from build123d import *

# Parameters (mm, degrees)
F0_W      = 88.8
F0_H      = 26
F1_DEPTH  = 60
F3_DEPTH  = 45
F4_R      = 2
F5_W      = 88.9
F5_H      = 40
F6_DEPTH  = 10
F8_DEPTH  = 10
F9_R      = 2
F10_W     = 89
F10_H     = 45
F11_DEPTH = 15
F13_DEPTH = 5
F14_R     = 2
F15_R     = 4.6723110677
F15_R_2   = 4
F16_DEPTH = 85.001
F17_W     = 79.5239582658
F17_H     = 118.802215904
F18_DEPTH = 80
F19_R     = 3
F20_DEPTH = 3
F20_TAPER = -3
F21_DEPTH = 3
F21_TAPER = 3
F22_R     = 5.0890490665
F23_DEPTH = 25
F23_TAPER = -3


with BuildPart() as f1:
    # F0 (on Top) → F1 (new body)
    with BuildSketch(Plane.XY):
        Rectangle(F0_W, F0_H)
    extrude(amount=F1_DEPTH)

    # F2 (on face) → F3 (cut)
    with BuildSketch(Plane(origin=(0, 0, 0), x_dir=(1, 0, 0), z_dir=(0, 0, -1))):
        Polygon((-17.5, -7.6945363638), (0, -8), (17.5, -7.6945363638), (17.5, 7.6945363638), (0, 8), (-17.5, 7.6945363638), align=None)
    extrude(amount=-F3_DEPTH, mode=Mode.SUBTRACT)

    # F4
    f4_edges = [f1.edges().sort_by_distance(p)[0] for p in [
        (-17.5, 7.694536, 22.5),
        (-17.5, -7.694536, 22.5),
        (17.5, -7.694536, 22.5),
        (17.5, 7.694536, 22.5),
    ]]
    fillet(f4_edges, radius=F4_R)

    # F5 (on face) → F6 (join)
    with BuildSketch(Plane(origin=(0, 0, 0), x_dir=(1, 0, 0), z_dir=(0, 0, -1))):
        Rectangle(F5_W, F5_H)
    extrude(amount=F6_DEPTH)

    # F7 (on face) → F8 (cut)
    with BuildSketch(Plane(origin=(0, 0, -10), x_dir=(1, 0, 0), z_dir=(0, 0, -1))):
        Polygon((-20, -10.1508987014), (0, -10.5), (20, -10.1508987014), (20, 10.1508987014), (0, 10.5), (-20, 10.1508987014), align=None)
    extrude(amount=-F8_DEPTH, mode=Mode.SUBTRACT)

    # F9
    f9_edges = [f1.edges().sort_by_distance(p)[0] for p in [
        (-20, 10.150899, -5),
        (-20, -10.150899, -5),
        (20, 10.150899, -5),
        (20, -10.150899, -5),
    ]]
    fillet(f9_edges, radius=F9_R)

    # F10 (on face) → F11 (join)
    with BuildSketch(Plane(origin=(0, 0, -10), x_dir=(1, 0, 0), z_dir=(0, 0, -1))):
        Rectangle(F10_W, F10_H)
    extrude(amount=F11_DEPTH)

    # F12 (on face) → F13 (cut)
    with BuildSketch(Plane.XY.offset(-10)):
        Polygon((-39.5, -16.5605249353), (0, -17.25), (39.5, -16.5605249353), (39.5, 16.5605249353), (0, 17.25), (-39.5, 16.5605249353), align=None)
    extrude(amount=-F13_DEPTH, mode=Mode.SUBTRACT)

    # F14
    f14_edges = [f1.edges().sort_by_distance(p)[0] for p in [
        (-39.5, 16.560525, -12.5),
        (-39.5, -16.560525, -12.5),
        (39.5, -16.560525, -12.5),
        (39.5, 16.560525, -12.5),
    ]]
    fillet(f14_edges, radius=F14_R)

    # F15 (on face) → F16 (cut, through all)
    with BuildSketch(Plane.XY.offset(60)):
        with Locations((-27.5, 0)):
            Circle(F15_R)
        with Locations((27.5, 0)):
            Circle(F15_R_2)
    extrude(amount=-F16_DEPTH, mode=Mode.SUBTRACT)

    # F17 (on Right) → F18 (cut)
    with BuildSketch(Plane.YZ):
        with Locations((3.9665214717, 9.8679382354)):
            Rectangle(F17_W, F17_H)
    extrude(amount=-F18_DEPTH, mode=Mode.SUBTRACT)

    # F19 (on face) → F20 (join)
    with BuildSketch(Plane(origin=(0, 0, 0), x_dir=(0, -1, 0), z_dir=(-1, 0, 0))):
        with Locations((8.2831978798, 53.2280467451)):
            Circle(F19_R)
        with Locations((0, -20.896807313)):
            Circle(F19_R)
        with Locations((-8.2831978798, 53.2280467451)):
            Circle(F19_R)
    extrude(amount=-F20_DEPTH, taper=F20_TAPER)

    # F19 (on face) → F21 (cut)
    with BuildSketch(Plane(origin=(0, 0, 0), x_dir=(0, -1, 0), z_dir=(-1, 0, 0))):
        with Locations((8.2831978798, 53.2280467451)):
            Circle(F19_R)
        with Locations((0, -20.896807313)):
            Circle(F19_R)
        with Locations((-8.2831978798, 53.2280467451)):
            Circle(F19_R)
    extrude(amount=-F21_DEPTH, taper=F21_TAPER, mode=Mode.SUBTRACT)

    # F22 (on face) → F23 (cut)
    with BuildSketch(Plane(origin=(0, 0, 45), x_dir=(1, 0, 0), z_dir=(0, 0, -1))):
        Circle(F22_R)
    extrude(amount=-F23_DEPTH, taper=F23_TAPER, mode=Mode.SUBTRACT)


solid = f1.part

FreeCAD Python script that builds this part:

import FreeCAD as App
import Part
import Sketcher
from FreeCAD import Vector
Q = App.Units.Quantity


def edges_at(feature, points):
    """Names of the edges that pass closest to the given points."""
    edges = feature.Shape.Edges
    near = lambda p: min(range(len(edges)), key=lambda i: edges[i].distToShape(Part.Vertex(*p))[0])
    return sorted({f"Edge{near(p) + 1}" for p in points})


def add_polygon(sketch, points):
    """Adds a closed chain of lines whose ends are joined by coincident constraints."""
    first, n = sketch.GeometryCount, len(points)
    for a, b in zip(points, points[1:] + points[:1]):
        sketch.addGeometry(Part.LineSegment(App.Vector(*a, 0), App.Vector(*b, 0)), False)
    for i in range(n):
        sketch.addConstraint(Sketcher.Constraint("Coincident", first + i, 2, first + (i + 1) % n, 1))

doc = App.newDocument("Part")
body = doc.addObject("PartDesign::Body", "Body")

# Sketch on XY plane
sketch1 = body.newObject("Sketcher::SketchObject", "Sketch")
sketch1.AttachmentSupport = (doc.getObject("XY_Plane"), [""])
sketch1.MapMode = "FlatFace"
add_polygon(sketch1, [(-44, 13), (-44, -13), (44, -13), (44, 13)])  # lines 0-3
sketch1.addConstraint([
    Sketcher.Constraint("Vertical", 0),
    Sketcher.Constraint("Horizontal", 1),
    Sketcher.Constraint("Vertical", 2),
    Sketcher.Constraint("Horizontal", 3),
    Sketcher.Constraint("Symmetric", 0, 2, 2, 2, -1, 1),
    Sketcher.Constraint("DistanceY", 0, 2, 0, 1, 26.0),
    Sketcher.Constraint("DistanceX", 1, 1, 1, 2, 88.8),
])
pad1 = body.newObject("PartDesign::Pad", "Pad")
pad1.Profile = sketch1
pad1.Length = 60

# Sketch on XY plane
sketch2 = body.newObject("Sketcher::SketchObject", "Sketch001")
sketch2.AttachmentSupport = (doc.getObject("XY_Plane"), [""])
sketch2.MapMode = "FlatFace"
add_polygon(sketch2, [(-18, 8), (0, 8), (18, 8), (18, -8), (0, -8), (-18, -8)])  # lines 0-5
sketch2.addConstraint([
    Sketcher.Constraint("Vertical", 2),
    Sketcher.Constraint("Vertical", 5),
    Sketcher.Constraint("Symmetric", 0, 2, 3, 2, -1, 1),
    Sketcher.Constraint("Symmetric", 1, 2, 4, 2, -1, 1),
    Sketcher.Constraint("PointOnObject", 0, 2, -2),
    Sketcher.Constraint("Parallel", 0, 3),
    Sketcher.Constraint("Horizontal", 2, 2, 4, 2),
    Sketcher.Constraint("Angle", 0, Q("1 deg")),
    Sketcher.Constraint("DistanceY", -1, 1, 0, 2, 8.0),
    Sketcher.Constraint("DistanceX", 4, 2, 2, 2, 35.0),
])
pocket1 = body.newObject("PartDesign::Pocket", "Pocket")
pocket1.Profile = sketch2
pocket1.Length = 45
pocket1.Reversed = True
doc.recompute()

fillet = body.newObject("PartDesign::Fillet", "Fillet")
fillet.Base = (pocket1, edges_at(pocket1, [
    (-17.5, 7.695, 22.5),
    (-17.5, -7.695, 22.5),
    (17.5, -7.695, 22.5),
    (17.5, 7.695, 22.5),
]))
fillet.Radius = 2

# Sketch on XY plane
sketch3 = body.newObject("Sketcher::SketchObject", "Sketch002")
sketch3.AttachmentSupport = (doc.getObject("XY_Plane"), [""])
sketch3.MapMode = "FlatFace"
add_polygon(sketch3, [(-44, -20), (-44, 20), (44, 20), (44, -20)])  # lines 0-3
sketch3.addConstraint([
    Sketcher.Constraint("Vertical", 0),
    Sketcher.Constraint("Horizontal", 1),
    Sketcher.Constraint("Vertical", 2),
    Sketcher.Constraint("Horizontal", 3),
    Sketcher.Constraint("Symmetric", 0, 2, 2, 2, -1, 1),
    Sketcher.Constraint("DistanceY", 0, 1, 0, 2, 40.0),
    Sketcher.Constraint("DistanceX", 1, 1, 1, 2, 88.9),
])
pad2 = body.newObject("PartDesign::Pad", "Pad001")
pad2.Profile = sketch3
pad2.Length = 10
pad2.Reversed = True

# Sketch on XY plane
sketch4 = body.newObject("Sketcher::SketchObject", "Sketch003")
sketch4.AttachmentSupport = (doc.getObject("XY_Plane"), [""])
sketch4.MapMode = "FlatFace"
sketch4.AttachmentOffset = App.Placement(Vector(0, 0, -10), App.Rotation())
add_polygon(sketch4, [(-20, 10), (0, 10), (20, 10), (20, -10), (0, -10), (-20, -10)])  # lines 0-5
sketch4.addConstraint([
    Sketcher.Constraint("Vertical", 2),
    Sketcher.Constraint("Vertical", 5),
    Sketcher.Constraint("Symmetric", 0, 2, 3, 2, -1, 1),
    Sketcher.Constraint("Symmetric", 1, 2, 4, 2, -1, 1),
    Sketcher.Constraint("PointOnObject", 0, 2, -2),
    Sketcher.Constraint("Parallel", 0, 3),
    Sketcher.Constraint("Horizontal", 2, 2, 4, 2),
    Sketcher.Constraint("Angle", 0, Q("1 deg")),
    Sketcher.Constraint("DistanceX", -1, 1, 1, 2, 20.0),
    Sketcher.Constraint("DistanceY", 3, 2, 0, 2, 21.0),
])
pocket2 = body.newObject("PartDesign::Pocket", "Pocket001")
pocket2.Profile = sketch4
pocket2.Length = 10
pocket2.Reversed = True
doc.recompute()

fillet2 = body.newObject("PartDesign::Fillet", "Fillet001")
fillet2.Base = (pocket2, edges_at(pocket2, [
    (-20, 10.151, -5),
    (-20, -10.151, -5),
    (20, 10.151, -5),
    (20, -10.151, -5),
]))
fillet2.Radius = 2

# Sketch on XY plane
sketch5 = body.newObject("Sketcher::SketchObject", "Sketch004")
sketch5.AttachmentSupport = (doc.getObject("XY_Plane"), [""])
sketch5.MapMode = "FlatFace"
sketch5.AttachmentOffset = App.Placement(Vector(0, 0, -10), App.Rotation())
add_polygon(sketch5, [(-44, -22), (-44, 22), (44, 22), (44, -22)])  # lines 0-3
sketch5.addConstraint([
    Sketcher.Constraint("Vertical", 0),
    Sketcher.Constraint("Horizontal", 1),
    Sketcher.Constraint("Vertical", 2),
    Sketcher.Constraint("Horizontal", 3),
    Sketcher.Constraint("Symmetric", 0, 2, 2, 2, -1, 1),
    Sketcher.Constraint("DistanceX", 1, 1, 1, 2, 89.0),
    Sketcher.Constraint("DistanceY", 0, 1, 0, 2, 45.0),
])
pad3 = body.newObject("PartDesign::Pad", "Pad002")
pad3.Profile = sketch5
pad3.Length = 15
pad3.Reversed = True

# Sketch on XY plane
sketch6 = body.newObject("Sketcher::SketchObject", "Sketch005")
sketch6.AttachmentSupport = (doc.getObject("XY_Plane"), [""])
sketch6.MapMode = "FlatFace"
sketch6.AttachmentOffset = App.Placement(Vector(0, 0, -10), App.Rotation())
add_polygon(sketch6, [(-40, -17), (0, -17), (40, -17), (40, 17), (0, 17), (-40, 17)])  # lines 0-5
sketch6.addConstraint([
    Sketcher.Constraint("Vertical", 2),
    Sketcher.Constraint("Vertical", 5),
    Sketcher.Constraint("Symmetric", 0, 2, 3, 2, -1, 1),
    Sketcher.Constraint("Symmetric", 1, 2, 4, 2, -1, 1),
    Sketcher.Constraint("PointOnObject", 0, 2, -2),
    Sketcher.Constraint("Parallel", 0, 3),
    Sketcher.Constraint("Horizontal", 2, 2, 4, 2),
    Sketcher.Constraint("Angle", 0, Q("-1 deg")),
    Sketcher.Constraint("DistanceX", 4, 2, 2, 2, 79.0),
    Sketcher.Constraint("DistanceY", 0, 2, 3, 2, 34.5),
])
pocket3 = body.newObject("PartDesign::Pocket", "Pocket002")
pocket3.Profile = sketch6
pocket3.Length = 5
doc.recompute()

fillet3 = body.newObject("PartDesign::Fillet", "Fillet002")
fillet3.Base = (pocket3, edges_at(pocket3, [
    (-39.5, 16.561, -12.5),
    (-39.5, -16.561, -12.5),
    (39.5, -16.561, -12.5),
    (39.5, 16.561, -12.5),
]))
fillet3.Radius = 2

# Sketch on XY plane
sketch7 = body.newObject("Sketcher::SketchObject", "Sketch006")
sketch7.AttachmentSupport = (doc.getObject("XY_Plane"), [""])
sketch7.MapMode = "FlatFace"
sketch7.AttachmentOffset = App.Placement(Vector(0, 0, 60), App.Rotation())
sketch7.addGeometry([
    Part.Circle(Vector(-27.5, 0, 0), Vector(0, 0, 1), 4.7),
    Part.Circle(Vector(27.5, 0, 0), Vector(0, 0, 1), 4),
], False)
sketch7.addConstraint([
    Sketcher.Constraint("Symmetric", 0, 3, 1, 3, -1, 1),
    Sketcher.Constraint("PointOnObject", 0, 3, -1),
    Sketcher.Constraint("Diameter", 1, 8.0),
    Sketcher.Constraint("DistanceX", 0, 3, 1, 3, 55.0),
    Sketcher.Constraint("Diameter", 0, 9.344622),
])
pocket4 = body.newObject("PartDesign::Pocket", "Pocket003")
pocket4.Profile = sketch7
pocket4.Type = "ThroughAll"

# Sketch on YZ plane
sketch8 = body.newObject("Sketcher::SketchObject", "Sketch007")
sketch8.AttachmentSupport = (doc.getObject("YZ_Plane"), [""])
sketch8.MapMode = "FlatFace"
add_polygon(sketch8, [(-36, 69), (-36, -50), (44, -50), (44, 69)])  # lines 0-3
sketch8.addConstraint([
    Sketcher.Constraint("Vertical", 0),
    Sketcher.Constraint("Horizontal", 1),
    Sketcher.Constraint("Vertical", 2),
    Sketcher.Constraint("Horizontal", 3),
    Sketcher.Constraint("DistanceX", 1, 1, 1, 2, 79.523958),
    Sketcher.Constraint("DistanceX", -1, 1, 1, 2, 43.728501),
    Sketcher.Constraint("DistanceY", 0, 2, 0, 1, 118.802216),
    Sketcher.Constraint("DistanceY", 0, 2, -1, 1, 49.53317),
])
pocket5 = body.newObject("PartDesign::Pocket", "Pocket004")
pocket5.Profile = sketch8
pocket5.Length = 80

# Sketch on YZ plane
sketch9 = body.newObject("Sketcher::SketchObject", "Sketch008")
sketch9.AttachmentSupport = (doc.getObject("YZ_Plane"), [""])
sketch9.MapMode = "FlatFace"
sketch9.addGeometry([
    Part.Circle(Vector(-8.3, 53.2, 0), Vector(0, 0, 1), 3),
    Part.Circle(Vector(0, -20.9, 0), Vector(0, 0, 1), 3),
    Part.Circle(Vector(8.3, 53.2, 0), Vector(0, 0, 1), 3),
], False)
sketch9.addConstraint([
    Sketcher.Constraint("Equal", 0, 1),
    Sketcher.Constraint("Equal", 1, 2),
    Sketcher.Constraint("Symmetric", 0, 3, 2, 3, -2),
    Sketcher.Constraint("PointOnObject", 1, 3, -2),
    Sketcher.Constraint("Diameter", 0, 6.0),
    Sketcher.Constraint("DistanceX", 0, 3, -1, 1, 8.283198),
    Sketcher.Constraint("DistanceY", -1, 1, 0, 3, 53.228047),
    Sketcher.Constraint("DistanceY", 1, 3, -1, 1, 20.896807),
])
pad4 = body.newObject("PartDesign::Pad", "Pad003")
pad4.Profile = sketch9
pad4.Length = 3
pad4.TaperAngle = 3

# Sketch on YZ plane
sketch10 = body.newObject("Sketcher::SketchObject", "Sketch009")
sketch10.AttachmentSupport = (doc.getObject("YZ_Plane"), [""])
sketch10.MapMode = "FlatFace"
sketch10.addGeometry([
    Part.Circle(Vector(-8.3, 53.2, 0), Vector(0, 0, 1), 3),
    Part.Circle(Vector(0, -20.9, 0), Vector(0, 0, 1), 3),
    Part.Circle(Vector(8.3, 53.2, 0), Vector(0, 0, 1), 3),
], False)
sketch10.addConstraint([
    Sketcher.Constraint("Equal", 0, 1),
    Sketcher.Constraint("Equal", 1, 2),
    Sketcher.Constraint("Symmetric", 0, 3, 2, 3, -2),
    Sketcher.Constraint("PointOnObject", 1, 3, -2),
    Sketcher.Constraint("Diameter", 0, 6.0),
    Sketcher.Constraint("DistanceX", 0, 3, -1, 1, 8.283198),
    Sketcher.Constraint("DistanceY", -1, 1, 0, 3, 53.228047),
    Sketcher.Constraint("DistanceY", 1, 3, -1, 1, 20.896807),
])
pocket6 = body.newObject("PartDesign::Pocket", "Pocket005")
pocket6.Profile = sketch10
pocket6.Length = 3
pocket6.Reversed = True
pocket6.TaperAngle = -3

# Sketch on XY plane
sketch11 = body.newObject("Sketcher::SketchObject", "Sketch010")
sketch11.AttachmentSupport = (doc.getObject("XY_Plane"), [""])
sketch11.MapMode = "FlatFace"
sketch11.AttachmentOffset = App.Placement(Vector(0, 0, 45), App.Rotation())
sketch11.addGeometry(Part.Circle(Vector(0, 0, 0), Vector(0, 0, 1), 5), False)
sketch11.addConstraint([
    Sketcher.Constraint("Coincident", 0, 3, -1, 1),
    Sketcher.Constraint("Diameter", 0, 10.178098),
])
pocket7 = body.newObject("PartDesign::Pocket", "Pocket006")
pocket7.Profile = sketch11
pocket7.Length = 25
pocket7.Reversed = True
pocket7.TaperAngle = 3

doc.recompute()
